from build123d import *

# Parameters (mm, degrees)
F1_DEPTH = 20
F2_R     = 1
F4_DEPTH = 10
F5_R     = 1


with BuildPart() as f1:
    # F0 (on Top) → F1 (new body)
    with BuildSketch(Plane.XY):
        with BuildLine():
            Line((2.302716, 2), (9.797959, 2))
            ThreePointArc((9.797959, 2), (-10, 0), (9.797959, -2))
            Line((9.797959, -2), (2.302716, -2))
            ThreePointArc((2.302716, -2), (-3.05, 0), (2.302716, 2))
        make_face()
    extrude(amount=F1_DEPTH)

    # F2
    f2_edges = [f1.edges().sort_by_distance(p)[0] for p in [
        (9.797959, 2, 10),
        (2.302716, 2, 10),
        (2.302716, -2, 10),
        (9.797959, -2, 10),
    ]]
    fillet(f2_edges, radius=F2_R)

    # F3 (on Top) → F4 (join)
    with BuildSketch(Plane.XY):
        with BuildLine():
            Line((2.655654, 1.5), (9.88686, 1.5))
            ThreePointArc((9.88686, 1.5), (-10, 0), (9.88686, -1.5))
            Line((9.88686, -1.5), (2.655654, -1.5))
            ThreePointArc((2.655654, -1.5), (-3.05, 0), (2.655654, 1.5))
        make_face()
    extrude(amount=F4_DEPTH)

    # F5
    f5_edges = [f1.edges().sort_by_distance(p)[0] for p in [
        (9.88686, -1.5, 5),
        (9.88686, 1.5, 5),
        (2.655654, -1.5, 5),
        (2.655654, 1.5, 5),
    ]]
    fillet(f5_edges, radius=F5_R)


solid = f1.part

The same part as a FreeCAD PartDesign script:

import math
import FreeCAD as App
import Part
import Sketcher
from FreeCAD import Vector
Q = App.Units.Quantity


def edges_at(feature, points):
    """Names of the edges that pass closest to the given points."""
    edges = feature.Shape.Edges
    near = lambda p: min(range(len(edges)), key=lambda i: edges[i].distToShape(Part.Vertex(*p))[0])
    return sorted({f"Edge{near(p) + 1}" for p in points})

doc = App.newDocument("Part")
body = doc.addObject("PartDesign::Body", "Body")

sketch1 = doc.addObject("Sketcher::SketchObject", "Sketch")
body.addObject(sketch1)
sketch1.AttachmentSupport = (doc.XY_Plane, [""])
sketch1.MapMode = "FlatFace"
sketch1.addGeometry([
    Part.LineSegment(Vector(2.3, 2, 0), Vector(9.8, 2, 0)),
    Part.ArcOfCircle(Part.Circle(Vector(0, 0, 0), Vector(0, 0, 1), 10), math.radians(12), math.radians(348)),
    Part.LineSegment(Vector(9.8, -2, 0), Vector(2.3, -2, 0)),
    Part.ArcOfCircle(Part.Circle(Vector(0, 0, 0), Vector(0, 0, 1), 3.1), math.radians(41), math.radians(319)),
], False)
sketch1.addConstraint([
    Sketcher.Constraint("Coincident", 0, 2, 1, 1),
    Sketcher.Constraint("Coincident", 1, 2, 2, 1),
    Sketcher.Constraint("Coincident", 2, 2, 3, 2),
    Sketcher.Constraint("Coincident", 3, 1, 0, 1),
    Sketcher.Constraint("Horizontal", 0),
    Sketcher.Constraint("Horizontal", 2),
    Sketcher.Constraint("Coincident", 1, 3, -1, 1),
    Sketcher.Constraint("Coincident", 3, 3, -1, 1),
    Sketcher.Constraint("Vertical", 0, 2, 1, 2),
    Sketcher.Constraint("Radius", 1, Q("10 mm")),
    Sketcher.Constraint("Radius", 3, Q("3.05 mm")),
    Sketcher.Constraint("DistanceY", -1, 1, 0, 2, Q("2 mm")),
])
pad1 = doc.addObject("PartDesign::Pad", "Pad")
body.addObject(pad1)
pad1.Profile = sketch1
pad1.Length = 20
doc.recompute()

fillet = doc.addObject("PartDesign::Fillet", "Fillet")
body.addObject(fillet)
fillet.Base = (pad1, edges_at(pad1, [
    (9.798, 2, 10),
    (2.303, 2, 10),
    (2.303, -2, 10),
    (9.798, -2, 10),
]))
fillet.Radius = 1

sketch2 = doc.addObject("Sketcher::SketchObject", "Sketch001")
body.addObject(sketch2)
sketch2.AttachmentSupport = (doc.XY_Plane, [""])
sketch2.MapMode = "FlatFace"
sketch2.addGeometry([
    Part.LineSegment(Vector(2.7, 1.5, 0), Vector(9.9, 1.5, 0)),
    Part.ArcOfCircle(Part.Circle(Vector(0, 0, 0), Vector(0, 0, 1), 10), math.radians(9), math.radians(351)),
    Part.LineSegment(Vector(9.9, -1.5, 0), Vector(2.7, -1.5, 0)),
    Part.ArcOfCircle(Part.Circle(Vector(0, 0, 0), Vector(0, 0, 1), 3), math.radians(29), math.radians(331)),
], False)
sketch2.addConstraint([
    Sketcher.Constraint("Coincident", 0, 2, 1, 1),
    Sketcher.Constraint("Coincident", 1, 2, 2, 1),
    Sketcher.Constraint("Coincident", 2, 2, 3, 2),
    Sketcher.Constraint("Coincident", 3, 1, 0, 1),
    Sketcher.Constraint("Horizontal", 0),
    Sketcher.Constraint("Horizontal", 2),
    Sketcher.Constraint("Coincident", 1, 3, -1, 1),
    Sketcher.Constraint("Coincident", 3, 3, -1, 1),
    Sketcher.Constraint("Vertical", 0, 2, 1, 2),
    Sketcher.Constraint("Radius", 1, Q("10 mm")),
    Sketcher.Constraint("Radius", 3, Q("3.05 mm")),
    Sketcher.Constraint("DistanceY", 1, 2, 0, 2, Q("3 mm")),
])
pad2 = doc.addObject("PartDesign::Pad", "Pad001")
body.addObject(pad2)
pad2.Profile = sketch2
pad2.Length = 10
doc.recompute()

fillet2 = doc.addObject("PartDesign::Fillet", "Fillet001")
body.addObject(fillet2)
fillet2.Base = (pad2, edges_at(pad2, [
    (9.887, -1.5, 5),
    (9.887, 1.5, 5),
    (2.656, -1.5, 5),
    (2.656, 1.5, 5),
]))
fillet2.Radius = 1

doc.recompute()
